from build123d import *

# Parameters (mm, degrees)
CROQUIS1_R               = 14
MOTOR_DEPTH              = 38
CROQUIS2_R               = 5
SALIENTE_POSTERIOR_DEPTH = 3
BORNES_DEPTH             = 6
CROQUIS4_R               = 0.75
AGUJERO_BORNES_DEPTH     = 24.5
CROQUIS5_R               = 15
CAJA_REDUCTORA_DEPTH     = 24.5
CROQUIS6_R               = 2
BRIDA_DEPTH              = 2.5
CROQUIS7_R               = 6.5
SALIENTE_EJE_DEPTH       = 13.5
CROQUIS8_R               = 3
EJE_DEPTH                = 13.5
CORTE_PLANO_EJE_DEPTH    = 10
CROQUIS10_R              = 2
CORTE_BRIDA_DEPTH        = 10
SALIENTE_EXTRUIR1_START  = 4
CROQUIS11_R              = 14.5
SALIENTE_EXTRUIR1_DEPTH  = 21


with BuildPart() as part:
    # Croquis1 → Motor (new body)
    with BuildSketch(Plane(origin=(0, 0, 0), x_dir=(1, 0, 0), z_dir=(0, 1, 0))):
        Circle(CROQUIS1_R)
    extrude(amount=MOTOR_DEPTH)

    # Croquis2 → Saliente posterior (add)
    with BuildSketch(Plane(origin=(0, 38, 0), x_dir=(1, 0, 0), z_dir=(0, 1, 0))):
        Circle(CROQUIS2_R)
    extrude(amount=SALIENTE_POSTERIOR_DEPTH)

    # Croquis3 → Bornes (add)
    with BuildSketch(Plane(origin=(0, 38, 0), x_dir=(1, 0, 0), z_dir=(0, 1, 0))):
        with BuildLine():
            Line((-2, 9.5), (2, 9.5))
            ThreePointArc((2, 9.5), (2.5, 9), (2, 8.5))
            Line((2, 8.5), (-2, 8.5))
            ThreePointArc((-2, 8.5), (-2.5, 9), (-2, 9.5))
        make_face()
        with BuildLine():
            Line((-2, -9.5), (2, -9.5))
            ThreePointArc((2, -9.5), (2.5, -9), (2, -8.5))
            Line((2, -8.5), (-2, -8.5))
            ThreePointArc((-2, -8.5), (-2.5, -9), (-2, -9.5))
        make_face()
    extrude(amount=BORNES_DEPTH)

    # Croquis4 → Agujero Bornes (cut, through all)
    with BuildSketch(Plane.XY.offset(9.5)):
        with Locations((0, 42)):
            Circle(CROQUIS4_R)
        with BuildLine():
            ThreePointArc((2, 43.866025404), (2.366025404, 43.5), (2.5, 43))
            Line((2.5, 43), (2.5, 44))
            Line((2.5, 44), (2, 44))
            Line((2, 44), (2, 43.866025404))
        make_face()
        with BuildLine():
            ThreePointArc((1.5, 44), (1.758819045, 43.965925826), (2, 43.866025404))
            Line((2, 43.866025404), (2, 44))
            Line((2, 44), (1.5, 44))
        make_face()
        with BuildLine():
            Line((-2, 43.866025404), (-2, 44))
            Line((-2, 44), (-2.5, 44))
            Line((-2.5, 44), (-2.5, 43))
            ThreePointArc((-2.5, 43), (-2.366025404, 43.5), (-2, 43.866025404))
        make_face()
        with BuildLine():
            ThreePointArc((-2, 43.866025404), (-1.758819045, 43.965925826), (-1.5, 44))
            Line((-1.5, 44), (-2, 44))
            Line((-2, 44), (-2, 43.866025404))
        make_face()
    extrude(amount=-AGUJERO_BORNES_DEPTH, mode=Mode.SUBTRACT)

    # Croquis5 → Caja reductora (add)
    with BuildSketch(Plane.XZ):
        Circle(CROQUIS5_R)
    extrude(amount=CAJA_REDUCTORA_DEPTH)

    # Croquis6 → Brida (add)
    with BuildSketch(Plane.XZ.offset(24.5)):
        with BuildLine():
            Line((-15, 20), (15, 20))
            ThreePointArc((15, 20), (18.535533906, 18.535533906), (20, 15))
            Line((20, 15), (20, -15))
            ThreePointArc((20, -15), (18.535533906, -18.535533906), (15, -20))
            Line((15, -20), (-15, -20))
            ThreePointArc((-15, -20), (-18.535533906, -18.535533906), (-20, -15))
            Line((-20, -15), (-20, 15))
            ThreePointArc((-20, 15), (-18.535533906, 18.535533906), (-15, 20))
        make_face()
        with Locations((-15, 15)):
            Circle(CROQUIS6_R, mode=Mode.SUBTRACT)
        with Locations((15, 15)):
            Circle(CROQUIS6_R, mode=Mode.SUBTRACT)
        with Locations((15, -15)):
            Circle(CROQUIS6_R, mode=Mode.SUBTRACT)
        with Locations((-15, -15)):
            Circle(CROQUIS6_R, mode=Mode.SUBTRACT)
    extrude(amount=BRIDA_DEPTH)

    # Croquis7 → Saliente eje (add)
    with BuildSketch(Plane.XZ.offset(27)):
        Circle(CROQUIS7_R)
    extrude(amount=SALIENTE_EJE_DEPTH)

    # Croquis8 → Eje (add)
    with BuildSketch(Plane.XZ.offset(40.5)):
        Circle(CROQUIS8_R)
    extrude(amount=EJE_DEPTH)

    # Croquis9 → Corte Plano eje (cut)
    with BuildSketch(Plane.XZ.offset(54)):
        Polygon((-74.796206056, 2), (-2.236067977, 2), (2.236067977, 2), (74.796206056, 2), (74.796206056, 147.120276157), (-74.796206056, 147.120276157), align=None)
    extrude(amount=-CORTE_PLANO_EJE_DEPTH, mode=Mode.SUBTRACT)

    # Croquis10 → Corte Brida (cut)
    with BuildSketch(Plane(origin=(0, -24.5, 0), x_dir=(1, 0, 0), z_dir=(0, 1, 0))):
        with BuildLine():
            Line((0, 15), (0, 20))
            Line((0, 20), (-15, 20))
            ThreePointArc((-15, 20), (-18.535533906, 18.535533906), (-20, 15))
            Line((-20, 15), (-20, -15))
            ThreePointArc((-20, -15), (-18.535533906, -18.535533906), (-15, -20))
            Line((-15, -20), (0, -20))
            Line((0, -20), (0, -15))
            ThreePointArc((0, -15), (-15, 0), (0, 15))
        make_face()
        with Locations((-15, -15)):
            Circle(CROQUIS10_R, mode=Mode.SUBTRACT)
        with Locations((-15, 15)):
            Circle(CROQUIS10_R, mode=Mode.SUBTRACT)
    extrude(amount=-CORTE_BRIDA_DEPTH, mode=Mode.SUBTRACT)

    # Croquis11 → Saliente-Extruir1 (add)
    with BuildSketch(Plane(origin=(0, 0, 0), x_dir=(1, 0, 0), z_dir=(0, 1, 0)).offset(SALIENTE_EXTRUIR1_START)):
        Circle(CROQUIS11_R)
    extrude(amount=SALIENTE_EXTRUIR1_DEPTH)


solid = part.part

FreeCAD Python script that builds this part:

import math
import FreeCAD as App
import Part
import Sketcher
Q = App.Units.Quantity


def add_polygon(sketch, points):
    """Adds a closed chain of lines whose ends are joined by coincident constraints."""
    first, n = sketch.GeometryCount, len(points)
    for a, b in zip(points, points[1:] + points[:1]):
        sketch.addGeometry(Part.LineSegment(App.Vector(*a, 0), App.Vector(*b, 0)), False)
    for i in range(n):
        sketch.addConstraint(Sketcher.Constraint("Coincident", first + i, 2, first + (i + 1) % n, 1))

doc = App.newDocument("Part")
params = doc.addObject("Spreadsheet::Sheet", "Params")
for row, (alias, value) in enumerate([
    ("sketch1_diameter", "28 mm"),
    ("pad1_length", "38 mm"),
    ("sketch2_diameter", "10 mm"),
    ("pad2_length", "3 mm"),
    ("sketch3_radius", "0.5 mm"),
    ("sketch3_width", "4 mm"),
    ("pad3_length", "6 mm"),
    ("sketch4_radius", "1 mm"),
    ("sketch4_diameter", "1.5 mm"),
    ("sketch5_diameter", "30 mm"),
    ("pad4_length", "24.5 mm"),
    ("sketch6_diameter", "4 mm"),
    ("sketch6_radius", "5 mm"),
    ("sketch6_width", "30 mm"),
    ("pad5_length", "2.5 mm"),
    ("sketch7_diameter", "13 mm"),
    ("pad6_length", "13.5 mm"),
    ("sketch8_diameter", "6 mm"),
    ("pad7_length", "13.5 mm"),
    ("pocket2_length", "10 mm"),
    ("sketch10_diameter", "4 mm"),
    ("sketch10_radius", "5 mm"),
    ("sketch10_radius2", "15 mm"),
    ("sketch10_width", "15 mm"),
    ("pocket3_length", "10 mm"),
    ("sketch11_diameter", "29 mm"),
    ("pad8_length", "21 mm"),
], start=1):
    params.set(f"A{row}", alias)
    params.set(f"B{row}", "=" + value)
    params.setAlias(f"B{row}", alias)

body = doc.addObject("PartDesign::Body", "Body")

# Sketch on XZ plane
sketch1 = body.newObject("Sketcher::SketchObject", "Sketch")
sketch1.AttachmentSupport = (doc.getObject("XZ_Plane"), [""])
sketch1.MapMode = "FlatFace"
sketch1.addGeometry(Part.Circle(App.Vector(0, 0, 0), App.Vector(0, 0, 1), 14), False)
sketch1.addConstraint([
    Sketcher.Constraint("Coincident", 0, 3, -1, 1),
    Sketcher.Constraint("Diameter", 0, Q("28 mm")),
])
sketch1.setExpression("Constraints[1]", "Params.sketch1_diameter")
pad1 = body.newObject("PartDesign::Pad", "Pad")
pad1.Profile = sketch1
pad1.setExpression("Length", "Params.pad1_length")
pad1.Reversed = True

# Sketch on XZ plane
sketch2 = body.newObject("Sketcher::SketchObject", "Sketch001")
sketch2.AttachmentSupport = (doc.getObject("XZ_Plane"), [""])
sketch2.MapMode = "FlatFace"
sketch2.AttachmentOffset = App.Placement(App.Vector(0, 0, -38), App.Rotation())
sketch2.addGeometry(Part.Circle(App.Vector(0, 0, 0), App.Vector(0, 0, 1), 5), False)
sketch2.addConstraint([
    Sketcher.Constraint("Coincident", 0, 3, -1, 1),
    Sketcher.Constraint("Diameter", 0, Q("10 mm")),
])
sketch2.setExpression("Constraints[1]", "Params.sketch2_diameter")
pad2 = body.newObject("PartDesign::Pad", "Pad001")
pad2.Profile = sketch2
pad2.setExpression("Length", "Params.pad2_length")
pad2.Reversed = True

# Sketch on XZ plane
sketch3 = body.newObject("Sketcher::SketchObject", "Sketch002")
sketch3.AttachmentSupport = (doc.getObject("XZ_Plane"), [""])
sketch3.MapMode = "FlatFace"
sketch3.AttachmentOffset = App.Placement(App.Vector(0, 0, -38), App.Rotation())
sketch3.addGeometry([
    Part.LineSegment(App.Vector(2, -9.5, 0), App.Vector(-2, -9.5, 0)),  # 0
    Part.ArcOfCircle(Part.Circle(App.Vector(-2, -9, 0), App.Vector(0, 0, 1), 0.5), math.radians(90), math.radians(270)),  # 1
    Part.LineSegment(App.Vector(-2, -8.5, 0), App.Vector(2, -8.5, 0)),  # 2
    Part.ArcOfCircle(Part.Circle(App.Vector(2, -9, 0), App.Vector(0, 0, 1), 0.5), math.radians(-90), math.radians(90)),  # 3
    Part.LineSegment(App.Vector(-2, 9.5, 0), App.Vector(2, 9.5, 0)),  # 4
    Part.ArcOfCircle(Part.Circle(App.Vector(2, 9, 0), App.Vector(0, 0, 1), 0.5), math.radians(-90), math.radians(90)),  # 5
    Part.LineSegment(App.Vector(2, 8.5, 0), App.Vector(-2, 8.5, 0)),  # 6
    Part.ArcOfCircle(Part.Circle(App.Vector(-2, 9, 0), App.Vector(0, 0, 1), 0.5), math.radians(90), math.radians(270)),  # 7
], False)
sketch3.addConstraint([
    Sketcher.Constraint("Tangent", 0, 2, 1, 2),
    Sketcher.Constraint("Tangent", 1, 1, 2, 1),
    Sketcher.Constraint("Tangent", 2, 2, 3, 2),
    Sketcher.Constraint("Tangent", 3, 1, 0, 1),
    Sketcher.Constraint("Tangent", 4, 2, 5, 2),
    Sketcher.Constraint("Tangent", 5, 1, 6, 1),
    Sketcher.Constraint("Tangent", 6, 2, 7, 2),
    Sketcher.Constraint("Tangent", 7, 1, 4, 1),
    Sketcher.Constraint("Horizontal", 0),
    Sketcher.Constraint("Horizontal", 2),
    Sketcher.Constraint("Horizontal", 4),
    Sketcher.Constraint("Horizontal", 6),
    Sketcher.Constraint("Equal", 3, 5),
    Sketcher.Constraint("Symmetric", 1, 3, 5, 3, -1, 1),
    Sketcher.Constraint("Vertical", 3, 3, 5, 3),
    Sketcher.Constraint("Vertical", 1, 3, 7, 3),
    Sketcher.Constraint("Radius", 1, Q("0.5 mm")),
    Sketcher.Constraint("DistanceX", 0, 2, 0, 1, Q("4 mm")),
    Sketcher.Constraint("DistanceY", 1, 3, -1, 1, Q("9 mm")),
])
sketch3.setExpression("Constraints[16]", "Params.sketch3_radius")
sketch3.setExpression("Constraints[17]", "Params.sketch3_width")
pad3 = body.newObject("PartDesign::Pad", "Pad002")
pad3.Profile = sketch3
pad3.setExpression("Length", "Params.pad3_length")
pad3.Reversed = True

# Sketch on XY plane
sketch4 = body.newObject("Sketcher::SketchObject", "Sketch003")
sketch4.AttachmentSupport = (doc.getObject("XY_Plane"), [""])
sketch4.MapMode = "FlatFace"
sketch4.AttachmentOffset = App.Placement(App.Vector(0, 0, 9.5), App.Rotation())
sketch4.addGeometry([
    Part.Circle(App.Vector(0, 42, 0), App.Vector(0, 0, 1), 0.75),  # 0
    Part.ArcOfCircle(Part.Circle(App.Vector(1.5, 43, 0), App.Vector(0, 0, 1), 1), math.radians(0), math.radians(60)),  # 1
    Part.LineSegment(App.Vector(2.5, 43, 0), App.Vector(2.5, 44, 0)),  # 2
    Part.LineSegment(App.Vector(2.5, 44, 0), App.Vector(1.5, 44, 0)),  # 3
    Part.ArcOfCircle(Part.Circle(App.Vector(1.5, 43, 0), App.Vector(0, 0, 1), 1), math.radians(60), math.radians(90)),  # 4
    Part.LineSegment(App.Vector(-2.5, 44, 0), App.Vector(-2.5, 43, 0)),  # 5
    Part.ArcOfCircle(Part.Circle(App.Vector(-1.5, 43, 0), App.Vector(0, 0, 1), 1), math.radians(120), math.radians(180)),  # 6
    Part.ArcOfCircle(Part.Circle(App.Vector(-1.5, 43, 0), App.Vector(0, 0, 1), 1), math.radians(90), math.radians(120)),  # 7
    Part.LineSegment(App.Vector(-1.5, 44, 0), App.Vector(-2.5, 44, 0)),  # 8
], False)
sketch4.addConstraint([
    Sketcher.Constraint("Tangent", 1, 1, 2, 1),
    Sketcher.Constraint("Coincident", 2, 2, 3, 1),
    Sketcher.Constraint("Tangent", 3, 2, 4, 2),
    Sketcher.Constraint("Tangent", 4, 1, 1, 2),
    Sketcher.Constraint("Tangent", 5, 2, 6, 2),
    Sketcher.Constraint("Tangent", 6, 1, 7, 2),
    Sketcher.Constraint("Tangent", 7, 1, 8, 1),
    Sketcher.Constraint("Coincident", 8, 2, 5, 1),
    Sketcher.Constraint("Vertical", 2),
    Sketcher.Constraint("Horizontal", 3),
    Sketcher.Constraint("Vertical", 5),
    Sketcher.Constraint("Horizontal", 8),
    Sketcher.Constraint("Equal", 1, 4),
    Sketcher.Constraint("Equal", 4, 6),
    Sketcher.Constraint("Equal", 6, 7),
    Sketcher.Constraint("Symmetric", 1, 3, 6, 3, -2),
    Sketcher.Constraint("PointOnObject", 0, 3, -2),
    Sketcher.Constraint("Horizontal", 4, 1, 6, 1),
    Sketcher.Constraint("Radius", 1, Q("1 mm")),
    Sketcher.Constraint("Diameter", 0, Q("1.5 mm")),
    Sketcher.Constraint("DistanceY", -1, 1, 0, 3, Q("42 mm")),
    Sketcher.Constraint("DistanceY", -1, 1, 1, 3, Q("43 mm")),
    Sketcher.Constraint("DistanceX", -1, 1, 4, 1, Q("2 mm")),
    Sketcher.Constraint("DistanceX", 6, 3, 4, 3, Q("3 mm")),
])
sketch4.setExpression("Constraints[18]", "Params.sketch4_radius")
sketch4.setExpression("Constraints[19]", "Params.sketch4_diameter")
pocket1 = body.newObject("PartDesign::Pocket", "Pocket")
pocket1.Profile = sketch4
pocket1.Type = "ThroughAll"

# Sketch on XZ plane
sketch5 = body.newObject("Sketcher::SketchObject", "Sketch004")
sketch5.AttachmentSupport = (doc.getObject("XZ_Plane"), [""])
sketch5.MapMode = "FlatFace"
sketch5.addGeometry(Part.Circle(App.Vector(0, 0, 0), App.Vector(0, 0, 1), 15), False)
sketch5.addConstraint([
    Sketcher.Constraint("Coincident", 0, 3, -1, 1),
    Sketcher.Constraint("Diameter", 0, Q("30 mm")),
])
sketch5.setExpression("Constraints[1]", "Params.sketch5_diameter")
pad4 = body.newObject("PartDesign::Pad", "Pad003")
pad4.Profile = sketch5
pad4.setExpression("Length", "Params.pad4_length")

# Sketch on XZ plane
sketch6 = body.newObject("Sketcher::SketchObject", "Sketch005")
sketch6.AttachmentSupport = (doc.getObject("XZ_Plane"), [""])
sketch6.MapMode = "FlatFace"
sketch6.AttachmentOffset = App.Placement(App.Vector(0, 0, 24.5), App.Rotation())
sketch6.addGeometry([
    Part.LineSegment(App.Vector(15, 20, 0), App.Vector(-15, 20, 0)),  # 0
    Part.ArcOfCircle(Part.Circle(App.Vector(-15, 15, 0), App.Vector(0, 0, 1), 5), math.radians(90), math.radians(180)),  # 1
    Part.LineSegment(App.Vector(-20, 15, 0), App.Vector(-20, -15, 0)),  # 2
    Part.ArcOfCircle(Part.Circle(App.Vector(-15, -15, 0), App.Vector(0, 0, 1), 5), math.radians(180), math.radians(270)),  # 3
    Part.LineSegment(App.Vector(-15, -20, 0), App.Vector(15, -20, 0)),  # 4
    Part.ArcOfCircle(Part.Circle(App.Vector(15, -15, 0), App.Vector(0, 0, 1), 5), math.radians(-90), math.radians(0)),  # 5
    Part.LineSegment(App.Vector(20, -15, 0), App.Vector(20, 15, 0)),  # 6
    Part.ArcOfCircle(Part.Circle(App.Vector(15, 15, 0), App.Vector(0, 0, 1), 5), math.radians(0), math.radians(90)),  # 7
    Part.Circle(App.Vector(15, -15, 0), App.Vector(0, 0, 1), 2),  # 8
    Part.Circle(App.Vector(-15, -15, 0), App.Vector(0, 0, 1), 2),  # 9
    Part.Circle(App.Vector(15, 15, 0), App.Vector(0, 0, 1), 2),  # 10
    Part.Circle(App.Vector(-15, 15, 0), App.Vector(0, 0, 1), 2),  # 11
], False)
sketch6.addConstraint([
    Sketcher.Constraint("Tangent", 0, 2, 1, 1),
    Sketcher.Constraint("Tangent", 1, 2, 2, 1),
    Sketcher.Constraint("Tangent", 2, 2, 3, 1),
    Sketcher.Constraint("Tangent", 3, 2, 4, 1),
    Sketcher.Constraint("Tangent", 4, 2, 5, 1),
    Sketcher.Constraint("Tangent", 5, 2, 6, 1),
    Sketcher.Constraint("Tangent", 6, 2, 7, 1),
    Sketcher.Constraint("Tangent", 7, 2, 0, 1),
    Sketcher.Constraint("Horizontal", 0),
    Sketcher.Constraint("Vertical", 2),
    Sketcher.Constraint("Horizontal", 4),
    Sketcher.Constraint("Vertical", 6),
    Sketcher.Constraint("Coincident", 8, 3, 5, 3),
    Sketcher.Constraint("Coincident", 9, 3, 3, 3),
    Sketcher.Constraint("Coincident", 10, 3, 7, 3),
    Sketcher.Constraint("Coincident", 11, 3, 1, 3),
    Sketcher.Constraint("Equal", 1, 3),
    Sketcher.Constraint("Equal", 3, 5),
    Sketcher.Constraint("Equal", 5, 7),
    Sketcher.Constraint("Equal", 8, 9),
    Sketcher.Constraint("Equal", 9, 10),
    Sketcher.Constraint("Equal", 10, 11),
    Sketcher.Constraint("Symmetric", 1, 3, 5, 3, -1, 1),
    Sketcher.Constraint("Equal", 4, 2),
    Sketcher.Constraint("Diameter", 8, Q("4 mm")),
    Sketcher.Constraint("Radius", 1, Q("5 mm")),
    Sketcher.Constraint("DistanceX", 0, 2, 0, 1, Q("30 mm")),
])
sketch6.setExpression("Constraints[24]", "Params.sketch6_diameter")
sketch6.setExpression("Constraints[25]", "Params.sketch6_radius")
sketch6.setExpression("Constraints[26]", "Params.sketch6_width")
pad5 = body.newObject("PartDesign::Pad", "Pad004")
pad5.Profile = sketch6
pad5.setExpression("Length", "Params.pad5_length")

# Sketch on XZ plane
sketch7 = body.newObject("Sketcher::SketchObject", "Sketch006")
sketch7.AttachmentSupport = (doc.getObject("XZ_Plane"), [""])
sketch7.MapMode = "FlatFace"
sketch7.AttachmentOffset = App.Placement(App.Vector(0, 0, 27), App.Rotation())
sketch7.addGeometry(Part.Circle(App.Vector(0, 0, 0), App.Vector(0, 0, 1), 6.5), False)
sketch7.addConstraint([
    Sketcher.Constraint("Coincident", 0, 3, -1, 1),
    Sketcher.Constraint("Diameter", 0, Q("13 mm")),
])
sketch7.setExpression("Constraints[1]", "Params.sketch7_diameter")
pad6 = body.newObject("PartDesign::Pad", "Pad005")
pad6.Profile = sketch7
pad6.setExpression("Length", "Params.pad6_length")

# Sketch on XZ plane
sketch8 = body.newObject("Sketcher::SketchObject", "Sketch007")
sketch8.AttachmentSupport = (doc.getObject("XZ_Plane"), [""])
sketch8.MapMode = "FlatFace"
sketch8.AttachmentOffset = App.Placement(App.Vector(0, 0, 40.5), App.Rotation())
sketch8.addGeometry(Part.Circle(App.Vector(0, 0, 0), App.Vector(0, 0, 1), 3), False)
sketch8.addConstraint([
    Sketcher.Constraint("Coincident", 0, 3, -1, 1),
    Sketcher.Constraint("Diameter", 0, Q("6 mm")),
])
sketch8.setExpression("Constraints[1]", "Params.sketch8_diameter")
pad7 = body.newObject("PartDesign::Pad", "Pad006")
pad7.Profile = sketch8
pad7.setExpression("Length", "Params.pad7_length")

# Sketch on XZ plane
sketch9 = body.newObject("Sketcher::SketchObject", "Sketch008")
sketch9.AttachmentSupport = (doc.getObject("XZ_Plane"), [""])
sketch9.MapMode = "FlatFace"
sketch9.AttachmentOffset = App.Placement(App.Vector(0, 0, 54), App.Rotation())
add_polygon(sketch9, [(-74.796206, 2), (74.796206, 2), (74.796206, 147.120276), (-74.796206, 147.120276)])  # lines 0-3
sketch9.addConstraint([
    Sketcher.Constraint("Horizontal", 0),
    Sketcher.Constraint("Vertical", 1),
    Sketcher.Constraint("Horizontal", 2),
    Sketcher.Constraint("Vertical", 3),
    Sketcher.Constraint("DistanceY", -1, 1, 0, 2, Q("2 mm")),
    Sketcher.Constraint("DistanceX", 0, 1, 0, 2, Q("149.592412 mm")),
    Sketcher.Constraint("DistanceY", 1, 1, 1, 2, Q("145.120276 mm")),
    Sketcher.Constraint("DistanceX", -1, 1, 0, 2, Q("74.796206 mm")),
])
pocket2 = body.newObject("PartDesign::Pocket", "Pocket001")
pocket2.Profile = sketch9
pocket2.setExpression("Length", "Params.pocket2_length")

# Sketch on XZ plane
sketch10 = body.newObject("Sketcher::SketchObject", "Sketch009")
sketch10.AttachmentSupport = (doc.getObject("XZ_Plane"), [""])
sketch10.MapMode = "FlatFace"
sketch10.AttachmentOffset = App.Placement(App.Vector(0, 0, 24.5), App.Rotation())
sketch10.addGeometry([
    Part.LineSegment(App.Vector(0, -15, 0), App.Vector(0, -20, 0)),  # 0
    Part.LineSegment(App.Vector(0, -20, 0), App.Vector(-15, -20, 0)),  # 1
    Part.ArcOfCircle(Part.Circle(App.Vector(-15, -15, 0), App.Vector(0, 0, 1), 5), math.radians(180), math.radians(270)),  # 2
    Part.LineSegment(App.Vector(-20, -15, 0), App.Vector(-20, 15, 0)),  # 3
    Part.ArcOfCircle(Part.Circle(App.Vector(-15, 15, 0), App.Vector(0, 0, 1), 5), math.radians(90), math.radians(180)),  # 4
    Part.LineSegment(App.Vector(-15, 20, 0), App.Vector(0, 20, 0)),  # 5
    Part.LineSegment(App.Vector(0, 20, 0), App.Vector(0, 15, 0)),  # 6
    Part.ArcOfCircle(Part.Circle(App.Vector(0, 0, 0), App.Vector(0, 0, 1), 15), math.radians(90), math.radians(270)),  # 7
    Part.Circle(App.Vector(-15, 15, 0), App.Vector(0, 0, 1), 2),  # 8
    Part.Circle(App.Vector(-15, -15, 0), App.Vector(0, 0, 1), 2),  # 9
], False)
sketch10.addConstraint([
    Sketcher.Constraint("Coincident", 0, 2, 1, 1),
    Sketcher.Constraint("Tangent", 1, 2, 2, 2),
    Sketcher.Constraint("Tangent", 2, 1, 3, 1),
    Sketcher.Constraint("Tangent", 3, 2, 4, 2),
    Sketcher.Constraint("Tangent", 4, 1, 5, 1),
    Sketcher.Constraint("Coincident", 5, 2, 6, 1),
    Sketcher.Constraint("Coincident", 6, 2, 7, 1),
    Sketcher.Constraint("Coincident", 7, 2, 0, 1),
    Sketcher.Constraint("Vertical", 0),
    Sketcher.Constraint("Horizontal", 1),
    Sketcher.Constraint("Vertical", 3),
    Sketcher.Constraint("Horizontal", 5),
    Sketcher.Constraint("Vertical", 6),
    Sketcher.Constraint("Coincident", 7, 3, -1, 1),
    Sketcher.Constraint("Coincident", 8, 3, 4, 3),
    Sketcher.Constraint("Coincident", 9, 3, 2, 3),
    Sketcher.Constraint("Equal", 2, 4),
    Sketcher.Constraint("Equal", 8, 9),
    Sketcher.Constraint("Symmetric", 0, 2, 5, 2, -1, 1),
    Sketcher.Constraint("PointOnObject", 0, 2, -2),
    Sketcher.Constraint("Horizontal", 3, 2, 6, 2),
    Sketcher.Constraint("Diameter", 8, Q("4 mm")),
    Sketcher.Constraint("Radius", 2, Q("5 mm")),
    Sketcher.Constraint("Radius", 7, Q("15 mm")),
    Sketcher.Constraint("DistanceX", 1, 2, 1, 1, Q("15 mm")),
])
sketch10.setExpression("Constraints[21]", "Params.sketch10_diameter")
sketch10.setExpression("Constraints[22]", "Params.sketch10_radius")
sketch10.setExpression("Constraints[23]", "Params.sketch10_radius2")
sketch10.setExpression("Constraints[24]", "Params.sketch10_width")
pocket3 = body.newObject("PartDesign::Pocket", "Pocket002")
pocket3.Profile = sketch10
pocket3.setExpression("Length", "Params.pocket3_length")
pocket3.Reversed = True

# Sketch on XZ plane
sketch11 = body.newObject("Sketcher::SketchObject", "Sketch010")
sketch11.AttachmentSupport = (doc.getObject("XZ_Plane"), [""])
sketch11.MapMode = "FlatFace"
sketch11.AttachmentOffset = App.Placement(App.Vector(0, 0, -4), App.Rotation())
sketch11.addGeometry(Part.Circle(App.Vector(0, 0, 0), App.Vector(0, 0, 1), 14.5), False)
sketch11.addConstraint([
    Sketcher.Constraint("Coincident", 0, 3, -1, 1),
    Sketcher.Constraint("Diameter", 0, Q("29 mm")),
])
sketch11.setExpression("Constraints[1]", "Params.sketch11_diameter")
pad8 = body.newObject("PartDesign::Pad", "Pad007")
pad8.Profile = sketch11
pad8.setExpression("Length", "Params.pad8_length")
pad8.Reversed = True

doc.recompute()
